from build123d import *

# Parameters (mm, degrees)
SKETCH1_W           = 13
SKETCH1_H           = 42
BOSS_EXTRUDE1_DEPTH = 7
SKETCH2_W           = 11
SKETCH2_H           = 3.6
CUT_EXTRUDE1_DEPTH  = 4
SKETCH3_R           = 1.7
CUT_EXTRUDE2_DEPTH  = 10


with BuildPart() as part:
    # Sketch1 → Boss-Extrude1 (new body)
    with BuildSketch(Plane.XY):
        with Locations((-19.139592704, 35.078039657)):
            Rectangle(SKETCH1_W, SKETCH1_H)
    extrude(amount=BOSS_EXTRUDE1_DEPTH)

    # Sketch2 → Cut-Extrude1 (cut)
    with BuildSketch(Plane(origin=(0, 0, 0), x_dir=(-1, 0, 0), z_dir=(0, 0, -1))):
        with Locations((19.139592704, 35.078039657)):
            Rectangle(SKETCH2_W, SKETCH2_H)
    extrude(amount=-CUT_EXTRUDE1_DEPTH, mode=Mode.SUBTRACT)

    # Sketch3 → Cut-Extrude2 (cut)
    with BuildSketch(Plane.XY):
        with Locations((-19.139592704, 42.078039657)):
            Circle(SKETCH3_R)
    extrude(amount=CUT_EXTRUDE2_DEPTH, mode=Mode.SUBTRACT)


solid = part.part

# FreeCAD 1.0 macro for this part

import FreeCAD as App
import Part
import Sketcher
from FreeCAD import Vector


def add_polygon(sketch, points):
    """Adds a closed chain of lines whose ends are joined by coincident constraints."""
    first, n = sketch.GeometryCount, len(points)
    for a, b in zip(points, points[1:] + points[:1]):
        sketch.addGeometry(Part.LineSegment(App.Vector(*a, 0), App.Vector(*b, 0)), False)
    for i in range(n):
        sketch.addConstraint(Sketcher.Constraint("Coincident", first + i, 2, first + (i + 1) % n, 1))

doc = App.newDocument("Part")
params = doc.addObject("Spreadsheet::Sheet", "Params")
for row, (alias, value) in enumerate([
    ("sketch1_width", "13 mm"),
    ("sketch1_height", "42 mm"),
    ("pad1_length", "7 mm"),
    ("sketch2_width", "11 mm"),
    ("sketch2_height", "3.6 mm"),
    ("pocket1_length", "4 mm"),
    ("sketch3_diameter", "3.4 mm"),
    ("pocket2_length", "10 mm"),
], start=1):
    params.set(f"A{row}", alias)
    params.set(f"B{row}", "=" + value)
    params.setAlias(f"B{row}", alias)

body = doc.addObject("PartDesign::Body", "Body")

sketch1 = doc.addObject("Sketcher::SketchObject", "Sketch")
body.addObject(sketch1)
sketch1.AttachmentSupport = (doc.XY_Plane, [""])
sketch1.MapMode = "FlatFace"
add_polygon(sketch1, [(-26, 56), (-26, 14), (-13, 14), (-13, 56)])
sketch1.addConstraint([
    Sketcher.Constraint("Vertical", 0),
    Sketcher.Constraint("Horizontal", 1),
    Sketcher.Constraint("Vertical", 2),
    Sketcher.Constraint("Horizontal", 3),
    Sketcher.Constraint("DistanceX", 1, 1, 1, 2, 13.0),
    Sketcher.Constraint("DistanceY", 0, 2, 0, 1, 42.0),
    Sketcher.Constraint("DistanceY", -1, 1, 0, 2, 14.07804),
    Sketcher.Constraint("DistanceX", 0, 2, -1, 1, 25.639593),
])
sketch1.setExpression("Constraints[8]", "Params.sketch1_width")
sketch1.setExpression("Constraints[9]", "Params.sketch1_height")
pad1 = doc.addObject("PartDesign::Pad", "Pad")
body.addObject(pad1)
pad1.Profile = sketch1
pad1.setExpression("Length", "Params.pad1_length")

sketch2 = doc.addObject("Sketcher::SketchObject", "Sketch001")
body.addObject(sketch2)
sketch2.AttachmentSupport = (doc.XY_Plane, [""])
sketch2.MapMode = "FlatFace"
add_polygon(sketch2, [(-13.6, 36.9), (-13.6, 33.3), (-24.6, 33.3), (-24.6, 36.9)])
sketch2.addConstraint([
    Sketcher.Constraint("Vertical", 0),
    Sketcher.Constraint("Horizontal", 1),
    Sketcher.Constraint("Vertical", 2),
    Sketcher.Constraint("Horizontal", 3),
    Sketcher.Constraint("DistanceX", 1, 2, 1, 1, 11.0),
    Sketcher.Constraint("DistanceY", 0, 2, 0, 1, 3.6),
    Sketcher.Constraint("DistanceY", -1, 1, 0, 2, 33.27804),
    Sketcher.Constraint("DistanceX", 0, 2, -1, 1, 13.639593),
])
sketch2.setExpression("Constraints[8]", "Params.sketch2_width")
sketch2.setExpression("Constraints[9]", "Params.sketch2_height")
pocket1 = doc.addObject("PartDesign::Pocket", "Pocket")
body.addObject(pocket1)
pocket1.Profile = sketch2
pocket1.setExpression("Length", "Params.pocket1_length")
pocket1.Reversed = True

sketch3 = doc.addObject("Sketcher::SketchObject", "Sketch002")
body.addObject(sketch3)
sketch3.AttachmentSupport = (doc.XY_Plane, [""])
sketch3.MapMode = "FlatFace"
sketch3.addGeometry(Part.Circle(Vector(-19.1, 42.1, 0), Vector(0, 0, 1), 1.7), False)
sketch3.addConstraint([
    Sketcher.Constraint("Diameter", 0, 3.4),
    Sketcher.Constraint("DistanceY", -1, 1, 0, 3, 42.07804),
    Sketcher.Constraint("DistanceX", 0, 3, -1, 1, 19.139593),
])
sketch3.setExpression("Constraints[0]", "Params.sketch3_diameter")
pocket2 = doc.addObject("PartDesign::Pocket", "Pocket001")
body.addObject(pocket2)
pocket2.Profile = sketch3
pocket2.setExpression("Length", "Params.pocket2_length")
pocket2.Reversed = True

doc.recompute()
